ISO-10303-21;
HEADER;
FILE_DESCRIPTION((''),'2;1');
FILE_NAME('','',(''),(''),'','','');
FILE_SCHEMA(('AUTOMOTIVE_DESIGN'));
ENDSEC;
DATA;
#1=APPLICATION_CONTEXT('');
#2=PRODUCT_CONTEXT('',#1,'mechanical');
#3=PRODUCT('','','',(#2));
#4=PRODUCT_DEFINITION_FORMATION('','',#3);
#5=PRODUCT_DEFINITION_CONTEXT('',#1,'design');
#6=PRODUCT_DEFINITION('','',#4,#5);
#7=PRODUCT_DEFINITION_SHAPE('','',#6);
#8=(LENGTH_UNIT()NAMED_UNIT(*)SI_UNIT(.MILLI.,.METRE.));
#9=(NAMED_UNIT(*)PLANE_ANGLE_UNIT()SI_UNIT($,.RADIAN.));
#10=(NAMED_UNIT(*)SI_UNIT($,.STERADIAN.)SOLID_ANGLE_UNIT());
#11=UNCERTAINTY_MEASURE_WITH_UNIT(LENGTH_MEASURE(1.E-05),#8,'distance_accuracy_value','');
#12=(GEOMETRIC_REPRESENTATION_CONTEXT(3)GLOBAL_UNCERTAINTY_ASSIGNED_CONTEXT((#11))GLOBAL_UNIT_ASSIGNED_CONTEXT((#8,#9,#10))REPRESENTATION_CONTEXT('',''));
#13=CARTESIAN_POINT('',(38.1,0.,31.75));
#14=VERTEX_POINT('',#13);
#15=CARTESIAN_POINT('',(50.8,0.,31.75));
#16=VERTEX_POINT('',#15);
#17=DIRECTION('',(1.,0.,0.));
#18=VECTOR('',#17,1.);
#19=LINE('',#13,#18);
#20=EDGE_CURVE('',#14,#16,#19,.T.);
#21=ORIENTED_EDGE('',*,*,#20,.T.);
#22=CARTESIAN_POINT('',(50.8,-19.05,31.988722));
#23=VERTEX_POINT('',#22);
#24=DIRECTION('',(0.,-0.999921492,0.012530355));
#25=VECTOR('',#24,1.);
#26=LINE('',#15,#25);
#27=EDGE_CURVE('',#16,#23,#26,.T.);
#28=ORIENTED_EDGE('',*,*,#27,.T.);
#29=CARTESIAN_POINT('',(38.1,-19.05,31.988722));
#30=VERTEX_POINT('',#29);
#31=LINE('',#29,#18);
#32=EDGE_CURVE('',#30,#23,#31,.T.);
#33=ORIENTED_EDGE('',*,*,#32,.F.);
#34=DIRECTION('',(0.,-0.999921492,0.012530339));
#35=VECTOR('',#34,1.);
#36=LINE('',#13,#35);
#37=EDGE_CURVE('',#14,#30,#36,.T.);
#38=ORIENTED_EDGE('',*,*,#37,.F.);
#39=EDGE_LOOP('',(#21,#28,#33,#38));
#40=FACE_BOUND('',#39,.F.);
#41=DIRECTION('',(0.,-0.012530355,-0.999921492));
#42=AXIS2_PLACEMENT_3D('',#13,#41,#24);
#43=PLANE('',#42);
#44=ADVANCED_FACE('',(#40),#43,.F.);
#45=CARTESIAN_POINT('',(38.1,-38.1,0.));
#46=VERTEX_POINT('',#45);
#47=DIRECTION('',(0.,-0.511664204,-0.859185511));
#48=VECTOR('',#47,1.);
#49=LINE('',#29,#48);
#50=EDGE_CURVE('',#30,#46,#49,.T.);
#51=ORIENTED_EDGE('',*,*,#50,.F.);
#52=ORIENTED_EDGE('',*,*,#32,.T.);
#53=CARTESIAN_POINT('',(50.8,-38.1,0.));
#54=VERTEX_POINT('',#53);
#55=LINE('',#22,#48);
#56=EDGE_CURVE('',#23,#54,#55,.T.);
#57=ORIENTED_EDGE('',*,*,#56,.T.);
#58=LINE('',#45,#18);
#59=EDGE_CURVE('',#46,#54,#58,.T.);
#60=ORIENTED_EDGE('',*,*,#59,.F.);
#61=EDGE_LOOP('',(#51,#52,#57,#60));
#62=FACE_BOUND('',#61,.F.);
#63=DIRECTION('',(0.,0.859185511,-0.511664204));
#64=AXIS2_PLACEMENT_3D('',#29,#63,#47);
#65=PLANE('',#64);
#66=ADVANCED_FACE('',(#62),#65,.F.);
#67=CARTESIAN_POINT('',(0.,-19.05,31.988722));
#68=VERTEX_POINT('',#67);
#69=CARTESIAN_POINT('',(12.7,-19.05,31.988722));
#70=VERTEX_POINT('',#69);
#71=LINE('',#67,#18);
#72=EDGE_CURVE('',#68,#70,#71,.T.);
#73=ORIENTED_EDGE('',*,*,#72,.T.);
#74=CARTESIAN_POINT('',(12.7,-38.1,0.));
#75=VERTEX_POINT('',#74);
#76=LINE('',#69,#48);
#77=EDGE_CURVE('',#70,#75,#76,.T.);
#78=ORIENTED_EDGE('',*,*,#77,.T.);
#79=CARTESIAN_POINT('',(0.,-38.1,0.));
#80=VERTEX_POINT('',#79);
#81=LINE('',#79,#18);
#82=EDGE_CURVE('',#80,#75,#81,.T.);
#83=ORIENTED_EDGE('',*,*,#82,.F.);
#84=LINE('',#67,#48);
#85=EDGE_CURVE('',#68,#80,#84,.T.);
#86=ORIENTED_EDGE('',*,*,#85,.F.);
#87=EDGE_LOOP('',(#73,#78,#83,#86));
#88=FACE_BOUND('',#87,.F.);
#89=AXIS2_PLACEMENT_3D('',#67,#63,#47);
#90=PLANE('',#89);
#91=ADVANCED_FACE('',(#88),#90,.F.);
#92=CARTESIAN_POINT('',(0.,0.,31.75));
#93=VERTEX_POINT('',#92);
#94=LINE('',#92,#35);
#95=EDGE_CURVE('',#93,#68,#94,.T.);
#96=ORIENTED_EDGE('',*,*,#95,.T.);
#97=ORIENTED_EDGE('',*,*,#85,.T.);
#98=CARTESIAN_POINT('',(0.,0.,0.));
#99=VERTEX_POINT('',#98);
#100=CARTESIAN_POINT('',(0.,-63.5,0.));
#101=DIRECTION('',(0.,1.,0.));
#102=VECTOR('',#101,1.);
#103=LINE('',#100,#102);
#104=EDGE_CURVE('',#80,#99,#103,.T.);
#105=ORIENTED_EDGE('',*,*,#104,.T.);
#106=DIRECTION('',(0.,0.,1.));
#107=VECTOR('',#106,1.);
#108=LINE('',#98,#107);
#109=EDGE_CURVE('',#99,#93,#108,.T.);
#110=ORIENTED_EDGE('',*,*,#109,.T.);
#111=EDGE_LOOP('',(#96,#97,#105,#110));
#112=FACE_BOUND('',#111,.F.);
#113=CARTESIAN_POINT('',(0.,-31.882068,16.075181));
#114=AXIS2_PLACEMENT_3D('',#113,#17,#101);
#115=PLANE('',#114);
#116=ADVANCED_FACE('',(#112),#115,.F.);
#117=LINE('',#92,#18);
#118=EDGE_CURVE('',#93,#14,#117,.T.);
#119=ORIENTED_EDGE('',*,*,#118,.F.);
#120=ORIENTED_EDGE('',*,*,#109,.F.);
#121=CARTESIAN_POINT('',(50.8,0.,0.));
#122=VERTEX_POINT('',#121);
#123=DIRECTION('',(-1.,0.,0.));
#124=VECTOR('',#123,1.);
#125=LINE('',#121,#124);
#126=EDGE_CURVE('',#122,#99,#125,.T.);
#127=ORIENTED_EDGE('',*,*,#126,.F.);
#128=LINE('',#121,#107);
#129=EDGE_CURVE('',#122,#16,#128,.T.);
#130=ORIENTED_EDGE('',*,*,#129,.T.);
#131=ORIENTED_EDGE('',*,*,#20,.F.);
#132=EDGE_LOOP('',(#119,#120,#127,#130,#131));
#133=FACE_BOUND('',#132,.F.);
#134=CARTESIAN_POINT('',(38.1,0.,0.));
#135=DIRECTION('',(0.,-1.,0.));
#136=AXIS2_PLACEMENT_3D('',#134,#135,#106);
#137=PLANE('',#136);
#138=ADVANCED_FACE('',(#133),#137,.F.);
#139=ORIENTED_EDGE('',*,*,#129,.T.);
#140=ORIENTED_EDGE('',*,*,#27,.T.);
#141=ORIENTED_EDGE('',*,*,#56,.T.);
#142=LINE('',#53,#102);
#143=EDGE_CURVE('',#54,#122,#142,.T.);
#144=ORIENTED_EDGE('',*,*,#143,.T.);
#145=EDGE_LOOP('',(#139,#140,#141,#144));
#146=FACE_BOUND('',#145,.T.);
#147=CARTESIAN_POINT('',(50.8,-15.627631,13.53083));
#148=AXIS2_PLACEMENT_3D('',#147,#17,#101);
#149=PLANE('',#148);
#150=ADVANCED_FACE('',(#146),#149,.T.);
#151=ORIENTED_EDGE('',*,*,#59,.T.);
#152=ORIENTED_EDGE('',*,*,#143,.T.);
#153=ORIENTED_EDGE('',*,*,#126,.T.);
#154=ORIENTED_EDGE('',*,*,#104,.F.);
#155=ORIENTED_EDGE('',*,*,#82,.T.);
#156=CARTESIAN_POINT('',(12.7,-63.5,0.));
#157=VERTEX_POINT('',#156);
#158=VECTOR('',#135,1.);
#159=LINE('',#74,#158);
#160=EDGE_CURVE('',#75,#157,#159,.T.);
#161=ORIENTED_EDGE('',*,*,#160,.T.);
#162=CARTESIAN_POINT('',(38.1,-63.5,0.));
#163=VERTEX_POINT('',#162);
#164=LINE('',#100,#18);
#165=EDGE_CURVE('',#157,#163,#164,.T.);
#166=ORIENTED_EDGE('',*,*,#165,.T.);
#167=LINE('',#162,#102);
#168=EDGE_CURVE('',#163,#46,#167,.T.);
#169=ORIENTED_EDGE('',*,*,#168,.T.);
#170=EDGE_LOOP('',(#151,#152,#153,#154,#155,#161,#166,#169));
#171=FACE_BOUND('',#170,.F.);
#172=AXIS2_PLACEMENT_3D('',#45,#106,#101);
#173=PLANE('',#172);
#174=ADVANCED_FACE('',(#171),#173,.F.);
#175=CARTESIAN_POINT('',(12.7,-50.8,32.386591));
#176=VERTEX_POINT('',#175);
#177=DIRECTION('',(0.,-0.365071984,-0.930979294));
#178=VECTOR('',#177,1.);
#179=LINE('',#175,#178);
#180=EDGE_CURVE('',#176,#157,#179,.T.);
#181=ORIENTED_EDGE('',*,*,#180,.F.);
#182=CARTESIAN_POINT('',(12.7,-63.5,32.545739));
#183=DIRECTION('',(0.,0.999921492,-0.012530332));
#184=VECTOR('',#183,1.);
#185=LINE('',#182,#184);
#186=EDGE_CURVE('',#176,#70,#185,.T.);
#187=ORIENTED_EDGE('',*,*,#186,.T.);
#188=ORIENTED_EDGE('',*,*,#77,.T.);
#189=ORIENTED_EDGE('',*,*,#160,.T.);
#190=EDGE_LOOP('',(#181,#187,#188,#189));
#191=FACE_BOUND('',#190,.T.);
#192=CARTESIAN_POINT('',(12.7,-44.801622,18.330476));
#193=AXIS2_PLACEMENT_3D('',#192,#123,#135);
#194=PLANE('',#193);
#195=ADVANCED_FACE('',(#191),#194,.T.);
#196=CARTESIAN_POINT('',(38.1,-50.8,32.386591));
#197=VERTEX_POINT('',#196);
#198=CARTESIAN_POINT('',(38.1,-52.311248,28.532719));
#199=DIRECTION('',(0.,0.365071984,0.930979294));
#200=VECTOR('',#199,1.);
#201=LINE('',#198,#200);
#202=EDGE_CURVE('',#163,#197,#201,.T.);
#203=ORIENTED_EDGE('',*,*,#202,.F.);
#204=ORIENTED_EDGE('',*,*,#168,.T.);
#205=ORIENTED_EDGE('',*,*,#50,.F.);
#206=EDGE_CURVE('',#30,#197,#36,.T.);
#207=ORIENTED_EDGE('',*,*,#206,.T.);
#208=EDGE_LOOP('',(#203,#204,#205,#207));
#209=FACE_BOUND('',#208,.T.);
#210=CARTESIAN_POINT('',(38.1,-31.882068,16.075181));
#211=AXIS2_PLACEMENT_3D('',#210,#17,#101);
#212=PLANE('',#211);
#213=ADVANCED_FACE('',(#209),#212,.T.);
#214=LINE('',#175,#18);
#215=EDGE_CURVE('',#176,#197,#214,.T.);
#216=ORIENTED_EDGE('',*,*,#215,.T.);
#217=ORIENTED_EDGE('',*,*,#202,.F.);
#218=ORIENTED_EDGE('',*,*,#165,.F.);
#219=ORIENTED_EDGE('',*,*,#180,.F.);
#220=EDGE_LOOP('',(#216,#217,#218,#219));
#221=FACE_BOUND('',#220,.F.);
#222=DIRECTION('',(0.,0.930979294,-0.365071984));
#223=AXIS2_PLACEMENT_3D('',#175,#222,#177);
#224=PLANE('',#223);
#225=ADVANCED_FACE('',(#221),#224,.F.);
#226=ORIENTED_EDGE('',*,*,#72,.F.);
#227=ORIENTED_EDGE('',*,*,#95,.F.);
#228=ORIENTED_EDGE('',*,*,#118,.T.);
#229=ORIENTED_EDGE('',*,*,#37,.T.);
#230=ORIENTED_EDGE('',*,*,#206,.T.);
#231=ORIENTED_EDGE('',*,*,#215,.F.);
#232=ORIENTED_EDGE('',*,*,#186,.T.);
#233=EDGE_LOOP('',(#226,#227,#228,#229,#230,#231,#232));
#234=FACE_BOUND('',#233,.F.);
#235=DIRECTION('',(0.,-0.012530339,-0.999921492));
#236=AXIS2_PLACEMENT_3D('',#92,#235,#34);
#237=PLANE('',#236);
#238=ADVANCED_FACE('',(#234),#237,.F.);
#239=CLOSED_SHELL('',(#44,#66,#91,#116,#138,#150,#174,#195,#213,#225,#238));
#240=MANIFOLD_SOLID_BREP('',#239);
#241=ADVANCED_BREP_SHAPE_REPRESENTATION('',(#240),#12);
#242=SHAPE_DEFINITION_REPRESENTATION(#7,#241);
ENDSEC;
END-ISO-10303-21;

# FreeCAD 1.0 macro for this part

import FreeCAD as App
import Part
import Sketcher
Q = App.Units.Quantity

doc = App.newDocument("Part")
body = doc.addObject("PartDesign::Body", "Body")

# Sketch on YZ plane
sketch1 = doc.addObject("Sketcher::SketchObject", "Sketch")
body.addObject(sketch1)
sketch1.AttachmentSupport = (doc.YZ_Plane, [""])
sketch1.MapMode = "FlatFace"
sketch1.addGeometry(Part.LineSegment(App.Vector(0, 0, 0), App.Vector(0, 32, 0)), False)
sketch1.addGeometry(Part.LineSegment(App.Vector(0, 32, 0), App.Vector(-64, 33, 0)), False)
sketch1.addGeometry(Part.LineSegment(App.Vector(-64, 33, 0), App.Vector(-64, 0, 0)), False)
sketch1.addGeometry(Part.LineSegment(App.Vector(-64, 0, 0), App.Vector(0, 0, 0)), False)
sketch1.addConstraint(Sketcher.Constraint("Coincident", 0, 2, 1, 1))
sketch1.addConstraint(Sketcher.Constraint("Coincident", 1, 2, 2, 1))
sketch1.addConstraint(Sketcher.Constraint("Coincident", 2, 2, 3, 1))
sketch1.addConstraint(Sketcher.Constraint("Coincident", 3, 2, 0, 1))
sketch1.addConstraint(Sketcher.Constraint("Vertical", 0))
sketch1.addConstraint(Sketcher.Constraint("Vertical", 2))
sketch1.addConstraint(Sketcher.Constraint("Horizontal", 3))
sketch1.addConstraint(Sketcher.Constraint("Coincident", 3, 2, -1, 1))
sketch1.addConstraint(Sketcher.Constraint("DistanceX", 3, 1, 3, 2, Q("2.5 in")))
sketch1.addConstraint(Sketcher.Constraint("DistanceY", 0, 1, 0, 2, Q("1.25 in")))
sketch1.addConstraint(Sketcher.Constraint("DistanceY", 2, 2, 2, 1, 32.545739))
pad1 = doc.addObject("PartDesign::Pad", "Pad")
body.addObject(pad1)
pad1.Profile = sketch1
pad1.Length = Q("1.5 in")

# Sketch on YZ plane
sketch2 = doc.addObject("Sketcher::SketchObject", "Sketch001")
body.addObject(sketch2)
sketch2.AttachmentSupport = (doc.YZ_Plane, [""])
sketch2.MapMode = "FlatFace"
sketch2.addGeometry(Part.LineSegment(App.Vector(-64, 33, 0), App.Vector(-19, 32, 0)), False)
sketch2.addGeometry(Part.LineSegment(App.Vector(-19, 32, 0), App.Vector(-38, 0, 0)), False)
sketch2.addGeometry(Part.LineSegment(App.Vector(-38, 0, 0), App.Vector(-64, 0, 0)), False)
sketch2.addGeometry(Part.LineSegment(App.Vector(-64, 0, 0), App.Vector(-64, 33, 0)), False)
sketch2.addConstraint(Sketcher.Constraint("Coincident", 0, 2, 1, 1))
sketch2.addConstraint(Sketcher.Constraint("Coincident", 1, 2, 2, 1))
sketch2.addConstraint(Sketcher.Constraint("Coincident", 2, 2, 3, 1))
sketch2.addConstraint(Sketcher.Constraint("Coincident", 3, 2, 0, 1))
sketch2.addConstraint(Sketcher.Constraint("Horizontal", 2))
sketch2.addConstraint(Sketcher.Constraint("Vertical", 3))
sketch2.addConstraint(Sketcher.Constraint("PointOnObject", 1, 2, -1))
sketch2.addConstraint(Sketcher.Constraint("DistanceX", 2, 2, 2, 1, Q("1 in")))
sketch2.addConstraint(Sketcher.Constraint("DistanceX", 1, 2, -1, 1, Q("1.5 in")))
sketch2.addConstraint(Sketcher.Constraint("DistanceX", 0, 2, -1, 1, Q("0.75 in")))
sketch2.addConstraint(Sketcher.Constraint("DistanceY", 3, 1, 3, 2, 32.545739))
sketch2.addConstraint(Sketcher.Constraint("Distance", 0, 44.45349))
pocket1 = doc.addObject("PartDesign::Pocket", "Pocket")
body.addObject(pocket1)
pocket1.Profile = sketch2
pocket1.Length = Q("0.5 in")
pocket1.Reversed = True

# Sketch on YZ plane
sketch3 = doc.addObject("Sketcher::SketchObject", "Sketch002")
body.addObject(sketch3)
sketch3.AttachmentSupport = (doc.YZ_Plane, [""])
sketch3.MapMode = "FlatFace"
sketch3.AttachmentOffset = App.Placement(App.Vector(0, 0, 1.5 * 25.4), App.Rotation())
sketch3.addGeometry(Part.LineSegment(App.Vector(0, 32, 0), App.Vector(-19, 32, 0)), False)
sketch3.addGeometry(Part.LineSegment(App.Vector(-19, 32, 0), App.Vector(-38, 0, 0)), False)
sketch3.addGeometry(Part.LineSegment(App.Vector(-38, 0, 0), App.Vector(0, 0, 0)), False)
sketch3.addGeometry(Part.LineSegment(App.Vector(0, 0, 0), App.Vector(0, 32, 0)), False)
sketch3.addConstraint(Sketcher.Constraint("Coincident", 0, 2, 1, 1))
sketch3.addConstraint(Sketcher.Constraint("Coincident", 1, 2, 2, 1))
sketch3.addConstraint(Sketcher.Constraint("Coincident", 2, 2, 3, 1))
sketch3.addConstraint(Sketcher.Constraint("Coincident", 3, 2, 0, 1))
sketch3.addConstraint(Sketcher.Constraint("Horizontal", 2))
sketch3.addConstraint(Sketcher.Constraint("Vertical", 3))
sketch3.addConstraint(Sketcher.Constraint("Coincident", 2, 2, -1, 1))
sketch3.addConstraint(Sketcher.Constraint("DistanceX", 2, 1, 2, 2, Q("1.5 in")))
sketch3.addConstraint(Sketcher.Constraint("DistanceY", 3, 1, 3, 2, Q("1.25 in")))
sketch3.addConstraint(Sketcher.Constraint("DistanceX", 0, 2, -1, 1, Q("0.75 in")))
sketch3.addConstraint(Sketcher.Constraint("Distance", 1, 37.23145))
pad2 = doc.addObject("PartDesign::Pad", "Pad001")
body.addObject(pad2)
pad2.Profile = sketch3
pad2.Length = Q("0.5 in")

# Sketch on YZ plane
sketch4 = doc.addObject("Sketcher::SketchObject", "Sketch003")
body.addObject(sketch4)
sketch4.AttachmentSupport = (doc.YZ_Plane, [""])
sketch4.MapMode = "FlatFace"
sketch4.AttachmentOffset = App.Placement(App.Vector(0, 0, 0.5 * 25.4), App.Rotation())
sketch4.addGeometry(Part.LineSegment(App.Vector(-64, 33, 0), App.Vector(-51, 32, 0)), False)
sketch4.addGeometry(Part.LineSegment(App.Vector(-51, 32, 0), App.Vector(-64, 0, 0)), False)
sketch4.addGeometry(Part.LineSegment(App.Vector(-64, 0, 0), App.Vector(-64, 33, 0)), False)
sketch4.addConstraint(Sketcher.Constraint("Coincident", 0, 2, 1, 1))
sketch4.addConstraint(Sketcher.Constraint("Coincident", 1, 2, 2, 1))
sketch4.addConstraint(Sketcher.Constraint("Coincident", 2, 2, 0, 1))
sketch4.addConstraint(Sketcher.Constraint("Vertical", 2))
sketch4.addConstraint(Sketcher.Constraint("PointOnObject", 1, 2, -1))
sketch4.addConstraint(Sketcher.Constraint("DistanceX", 0, 2, -1, 1, Q("2 in")))
sketch4.addConstraint(Sketcher.Constraint("DistanceX", 1, 2, -1, 1, Q("2.5 in")))
sketch4.addConstraint(Sketcher.Constraint("DistanceY", 2, 1, 2, 2, 32.545739))
sketch4.addConstraint(Sketcher.Constraint("Distance", 1, 34.78766))
pocket2 = doc.addObject("PartDesign::Pocket", "Pocket001")
body.addObject(pocket2)
pocket2.Profile = sketch4
pocket2.Length = Q("1 in")

# Sketch on YZ plane
sketch5 = doc.addObject("Sketcher::SketchObject", "Sketch004")
body.addObject(sketch5)
sketch5.AttachmentSupport = (doc.YZ_Plane, [""])
sketch5.MapMode = "FlatFace"
sketch5.AttachmentOffset = App.Placement(App.Vector(0, 0, 0.5 * 25.4), App.Rotation())
sketch5.addGeometry(Part.LineSegment(App.Vector(-64, 33, 0), App.Vector(-51, 32, 0)), False)
sketch5.addGeometry(Part.LineSegment(App.Vector(-51, 32, 0), App.Vector(-64, 0, 0)), False)
sketch5.addGeometry(Part.LineSegment(App.Vector(-64, 0, 0), App.Vector(-64, 33, 0)), False)
sketch5.addConstraint(Sketcher.Constraint("Coincident", 0, 2, 1, 1))
sketch5.addConstraint(Sketcher.Constraint("Coincident", 1, 2, 2, 1))
sketch5.addConstraint(Sketcher.Constraint("Coincident", 2, 2, 0, 1))
sketch5.addConstraint(Sketcher.Constraint("Vertical", 2))
sketch5.addConstraint(Sketcher.Constraint("PointOnObject", 1, 2, -1))
sketch5.addConstraint(Sketcher.Constraint("DistanceX", 0, 2, -1, 1, Q("2 in")))
sketch5.addConstraint(Sketcher.Constraint("DistanceX", 1, 2, -1, 1, Q("2.5 in")))
sketch5.addConstraint(Sketcher.Constraint("DistanceY", 2, 1, 2, 2, 32.545739))
sketch5.addConstraint(Sketcher.Constraint("Distance", 1, 34.78766))
pocket3 = doc.addObject("PartDesign::Pocket", "Pocket002")
body.addObject(pocket3)
pocket3.Profile = sketch5
pocket3.Length = Q("2 in")
pocket3.Reversed = True

doc.recompute()
